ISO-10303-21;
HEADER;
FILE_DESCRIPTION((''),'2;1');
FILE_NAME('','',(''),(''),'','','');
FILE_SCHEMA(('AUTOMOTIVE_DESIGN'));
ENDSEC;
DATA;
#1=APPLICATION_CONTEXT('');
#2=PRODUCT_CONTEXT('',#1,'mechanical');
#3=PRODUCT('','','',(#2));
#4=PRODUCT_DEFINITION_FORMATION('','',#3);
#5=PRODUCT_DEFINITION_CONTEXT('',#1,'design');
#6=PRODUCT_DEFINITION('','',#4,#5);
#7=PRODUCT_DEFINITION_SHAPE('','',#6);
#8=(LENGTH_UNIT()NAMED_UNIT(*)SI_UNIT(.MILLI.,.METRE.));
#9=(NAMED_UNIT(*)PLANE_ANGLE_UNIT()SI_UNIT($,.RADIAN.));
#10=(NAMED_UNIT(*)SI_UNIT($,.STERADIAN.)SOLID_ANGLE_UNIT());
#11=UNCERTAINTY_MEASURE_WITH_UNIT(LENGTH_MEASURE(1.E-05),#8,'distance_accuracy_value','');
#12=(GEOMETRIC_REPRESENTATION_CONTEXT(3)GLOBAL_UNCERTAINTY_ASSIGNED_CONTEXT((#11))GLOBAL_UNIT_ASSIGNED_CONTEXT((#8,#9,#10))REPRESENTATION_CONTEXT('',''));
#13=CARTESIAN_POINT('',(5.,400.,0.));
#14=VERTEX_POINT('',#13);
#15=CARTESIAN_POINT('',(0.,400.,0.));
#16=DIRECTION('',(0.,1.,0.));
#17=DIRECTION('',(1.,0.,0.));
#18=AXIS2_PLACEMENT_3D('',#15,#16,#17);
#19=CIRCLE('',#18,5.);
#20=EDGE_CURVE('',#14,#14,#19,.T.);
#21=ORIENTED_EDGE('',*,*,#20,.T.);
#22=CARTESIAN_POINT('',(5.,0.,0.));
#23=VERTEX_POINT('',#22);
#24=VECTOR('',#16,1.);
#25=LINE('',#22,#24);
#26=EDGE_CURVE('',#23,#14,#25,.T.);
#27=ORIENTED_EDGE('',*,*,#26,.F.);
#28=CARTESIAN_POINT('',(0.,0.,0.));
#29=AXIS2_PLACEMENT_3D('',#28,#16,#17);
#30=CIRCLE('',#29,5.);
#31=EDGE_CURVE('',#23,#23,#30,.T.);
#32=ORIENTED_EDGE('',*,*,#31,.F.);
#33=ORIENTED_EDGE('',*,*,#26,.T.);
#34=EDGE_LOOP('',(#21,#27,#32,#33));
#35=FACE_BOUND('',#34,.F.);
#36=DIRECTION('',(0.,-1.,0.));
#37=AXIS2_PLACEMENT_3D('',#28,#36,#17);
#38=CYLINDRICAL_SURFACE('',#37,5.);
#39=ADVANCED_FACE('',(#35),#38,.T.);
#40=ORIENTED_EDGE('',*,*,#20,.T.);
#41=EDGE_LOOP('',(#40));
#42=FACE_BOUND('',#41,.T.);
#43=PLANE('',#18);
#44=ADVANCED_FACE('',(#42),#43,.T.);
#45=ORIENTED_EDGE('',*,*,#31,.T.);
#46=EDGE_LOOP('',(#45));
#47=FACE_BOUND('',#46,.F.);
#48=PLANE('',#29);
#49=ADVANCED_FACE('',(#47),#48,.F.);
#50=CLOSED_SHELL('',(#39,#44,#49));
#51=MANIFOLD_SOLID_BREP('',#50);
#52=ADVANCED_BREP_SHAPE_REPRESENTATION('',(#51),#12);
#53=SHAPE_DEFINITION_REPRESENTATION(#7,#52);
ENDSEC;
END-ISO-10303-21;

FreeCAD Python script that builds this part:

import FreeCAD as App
import Part
import Sketcher
from FreeCAD import Vector

doc = App.newDocument("Part")
body = doc.addObject("PartDesign::Body", "Body")

# Sketch on XZ plane
sketch1 = doc.addObject("Sketcher::SketchObject", "Sketch")
body.addObject(sketch1)
sketch1.AttachmentSupport = (doc.XZ_Plane, [""])
sketch1.MapMode = "FlatFace"
sketch1.addGeometry(Part.Circle(Vector(0, 0, 0), Vector(0, 0, 1), 5), False)
sketch1.addConstraint([
    Sketcher.Constraint("Coincident", 0, 3, -1, 1),
    Sketcher.Constraint("Diameter", 0, 10.0),
])
pad1 = doc.addObject("PartDesign::Pad", "Pad")
body.addObject(pad1)
pad1.Profile = sketch1
pad1.Length = 400
pad1.Reversed = True

doc.recompute()
